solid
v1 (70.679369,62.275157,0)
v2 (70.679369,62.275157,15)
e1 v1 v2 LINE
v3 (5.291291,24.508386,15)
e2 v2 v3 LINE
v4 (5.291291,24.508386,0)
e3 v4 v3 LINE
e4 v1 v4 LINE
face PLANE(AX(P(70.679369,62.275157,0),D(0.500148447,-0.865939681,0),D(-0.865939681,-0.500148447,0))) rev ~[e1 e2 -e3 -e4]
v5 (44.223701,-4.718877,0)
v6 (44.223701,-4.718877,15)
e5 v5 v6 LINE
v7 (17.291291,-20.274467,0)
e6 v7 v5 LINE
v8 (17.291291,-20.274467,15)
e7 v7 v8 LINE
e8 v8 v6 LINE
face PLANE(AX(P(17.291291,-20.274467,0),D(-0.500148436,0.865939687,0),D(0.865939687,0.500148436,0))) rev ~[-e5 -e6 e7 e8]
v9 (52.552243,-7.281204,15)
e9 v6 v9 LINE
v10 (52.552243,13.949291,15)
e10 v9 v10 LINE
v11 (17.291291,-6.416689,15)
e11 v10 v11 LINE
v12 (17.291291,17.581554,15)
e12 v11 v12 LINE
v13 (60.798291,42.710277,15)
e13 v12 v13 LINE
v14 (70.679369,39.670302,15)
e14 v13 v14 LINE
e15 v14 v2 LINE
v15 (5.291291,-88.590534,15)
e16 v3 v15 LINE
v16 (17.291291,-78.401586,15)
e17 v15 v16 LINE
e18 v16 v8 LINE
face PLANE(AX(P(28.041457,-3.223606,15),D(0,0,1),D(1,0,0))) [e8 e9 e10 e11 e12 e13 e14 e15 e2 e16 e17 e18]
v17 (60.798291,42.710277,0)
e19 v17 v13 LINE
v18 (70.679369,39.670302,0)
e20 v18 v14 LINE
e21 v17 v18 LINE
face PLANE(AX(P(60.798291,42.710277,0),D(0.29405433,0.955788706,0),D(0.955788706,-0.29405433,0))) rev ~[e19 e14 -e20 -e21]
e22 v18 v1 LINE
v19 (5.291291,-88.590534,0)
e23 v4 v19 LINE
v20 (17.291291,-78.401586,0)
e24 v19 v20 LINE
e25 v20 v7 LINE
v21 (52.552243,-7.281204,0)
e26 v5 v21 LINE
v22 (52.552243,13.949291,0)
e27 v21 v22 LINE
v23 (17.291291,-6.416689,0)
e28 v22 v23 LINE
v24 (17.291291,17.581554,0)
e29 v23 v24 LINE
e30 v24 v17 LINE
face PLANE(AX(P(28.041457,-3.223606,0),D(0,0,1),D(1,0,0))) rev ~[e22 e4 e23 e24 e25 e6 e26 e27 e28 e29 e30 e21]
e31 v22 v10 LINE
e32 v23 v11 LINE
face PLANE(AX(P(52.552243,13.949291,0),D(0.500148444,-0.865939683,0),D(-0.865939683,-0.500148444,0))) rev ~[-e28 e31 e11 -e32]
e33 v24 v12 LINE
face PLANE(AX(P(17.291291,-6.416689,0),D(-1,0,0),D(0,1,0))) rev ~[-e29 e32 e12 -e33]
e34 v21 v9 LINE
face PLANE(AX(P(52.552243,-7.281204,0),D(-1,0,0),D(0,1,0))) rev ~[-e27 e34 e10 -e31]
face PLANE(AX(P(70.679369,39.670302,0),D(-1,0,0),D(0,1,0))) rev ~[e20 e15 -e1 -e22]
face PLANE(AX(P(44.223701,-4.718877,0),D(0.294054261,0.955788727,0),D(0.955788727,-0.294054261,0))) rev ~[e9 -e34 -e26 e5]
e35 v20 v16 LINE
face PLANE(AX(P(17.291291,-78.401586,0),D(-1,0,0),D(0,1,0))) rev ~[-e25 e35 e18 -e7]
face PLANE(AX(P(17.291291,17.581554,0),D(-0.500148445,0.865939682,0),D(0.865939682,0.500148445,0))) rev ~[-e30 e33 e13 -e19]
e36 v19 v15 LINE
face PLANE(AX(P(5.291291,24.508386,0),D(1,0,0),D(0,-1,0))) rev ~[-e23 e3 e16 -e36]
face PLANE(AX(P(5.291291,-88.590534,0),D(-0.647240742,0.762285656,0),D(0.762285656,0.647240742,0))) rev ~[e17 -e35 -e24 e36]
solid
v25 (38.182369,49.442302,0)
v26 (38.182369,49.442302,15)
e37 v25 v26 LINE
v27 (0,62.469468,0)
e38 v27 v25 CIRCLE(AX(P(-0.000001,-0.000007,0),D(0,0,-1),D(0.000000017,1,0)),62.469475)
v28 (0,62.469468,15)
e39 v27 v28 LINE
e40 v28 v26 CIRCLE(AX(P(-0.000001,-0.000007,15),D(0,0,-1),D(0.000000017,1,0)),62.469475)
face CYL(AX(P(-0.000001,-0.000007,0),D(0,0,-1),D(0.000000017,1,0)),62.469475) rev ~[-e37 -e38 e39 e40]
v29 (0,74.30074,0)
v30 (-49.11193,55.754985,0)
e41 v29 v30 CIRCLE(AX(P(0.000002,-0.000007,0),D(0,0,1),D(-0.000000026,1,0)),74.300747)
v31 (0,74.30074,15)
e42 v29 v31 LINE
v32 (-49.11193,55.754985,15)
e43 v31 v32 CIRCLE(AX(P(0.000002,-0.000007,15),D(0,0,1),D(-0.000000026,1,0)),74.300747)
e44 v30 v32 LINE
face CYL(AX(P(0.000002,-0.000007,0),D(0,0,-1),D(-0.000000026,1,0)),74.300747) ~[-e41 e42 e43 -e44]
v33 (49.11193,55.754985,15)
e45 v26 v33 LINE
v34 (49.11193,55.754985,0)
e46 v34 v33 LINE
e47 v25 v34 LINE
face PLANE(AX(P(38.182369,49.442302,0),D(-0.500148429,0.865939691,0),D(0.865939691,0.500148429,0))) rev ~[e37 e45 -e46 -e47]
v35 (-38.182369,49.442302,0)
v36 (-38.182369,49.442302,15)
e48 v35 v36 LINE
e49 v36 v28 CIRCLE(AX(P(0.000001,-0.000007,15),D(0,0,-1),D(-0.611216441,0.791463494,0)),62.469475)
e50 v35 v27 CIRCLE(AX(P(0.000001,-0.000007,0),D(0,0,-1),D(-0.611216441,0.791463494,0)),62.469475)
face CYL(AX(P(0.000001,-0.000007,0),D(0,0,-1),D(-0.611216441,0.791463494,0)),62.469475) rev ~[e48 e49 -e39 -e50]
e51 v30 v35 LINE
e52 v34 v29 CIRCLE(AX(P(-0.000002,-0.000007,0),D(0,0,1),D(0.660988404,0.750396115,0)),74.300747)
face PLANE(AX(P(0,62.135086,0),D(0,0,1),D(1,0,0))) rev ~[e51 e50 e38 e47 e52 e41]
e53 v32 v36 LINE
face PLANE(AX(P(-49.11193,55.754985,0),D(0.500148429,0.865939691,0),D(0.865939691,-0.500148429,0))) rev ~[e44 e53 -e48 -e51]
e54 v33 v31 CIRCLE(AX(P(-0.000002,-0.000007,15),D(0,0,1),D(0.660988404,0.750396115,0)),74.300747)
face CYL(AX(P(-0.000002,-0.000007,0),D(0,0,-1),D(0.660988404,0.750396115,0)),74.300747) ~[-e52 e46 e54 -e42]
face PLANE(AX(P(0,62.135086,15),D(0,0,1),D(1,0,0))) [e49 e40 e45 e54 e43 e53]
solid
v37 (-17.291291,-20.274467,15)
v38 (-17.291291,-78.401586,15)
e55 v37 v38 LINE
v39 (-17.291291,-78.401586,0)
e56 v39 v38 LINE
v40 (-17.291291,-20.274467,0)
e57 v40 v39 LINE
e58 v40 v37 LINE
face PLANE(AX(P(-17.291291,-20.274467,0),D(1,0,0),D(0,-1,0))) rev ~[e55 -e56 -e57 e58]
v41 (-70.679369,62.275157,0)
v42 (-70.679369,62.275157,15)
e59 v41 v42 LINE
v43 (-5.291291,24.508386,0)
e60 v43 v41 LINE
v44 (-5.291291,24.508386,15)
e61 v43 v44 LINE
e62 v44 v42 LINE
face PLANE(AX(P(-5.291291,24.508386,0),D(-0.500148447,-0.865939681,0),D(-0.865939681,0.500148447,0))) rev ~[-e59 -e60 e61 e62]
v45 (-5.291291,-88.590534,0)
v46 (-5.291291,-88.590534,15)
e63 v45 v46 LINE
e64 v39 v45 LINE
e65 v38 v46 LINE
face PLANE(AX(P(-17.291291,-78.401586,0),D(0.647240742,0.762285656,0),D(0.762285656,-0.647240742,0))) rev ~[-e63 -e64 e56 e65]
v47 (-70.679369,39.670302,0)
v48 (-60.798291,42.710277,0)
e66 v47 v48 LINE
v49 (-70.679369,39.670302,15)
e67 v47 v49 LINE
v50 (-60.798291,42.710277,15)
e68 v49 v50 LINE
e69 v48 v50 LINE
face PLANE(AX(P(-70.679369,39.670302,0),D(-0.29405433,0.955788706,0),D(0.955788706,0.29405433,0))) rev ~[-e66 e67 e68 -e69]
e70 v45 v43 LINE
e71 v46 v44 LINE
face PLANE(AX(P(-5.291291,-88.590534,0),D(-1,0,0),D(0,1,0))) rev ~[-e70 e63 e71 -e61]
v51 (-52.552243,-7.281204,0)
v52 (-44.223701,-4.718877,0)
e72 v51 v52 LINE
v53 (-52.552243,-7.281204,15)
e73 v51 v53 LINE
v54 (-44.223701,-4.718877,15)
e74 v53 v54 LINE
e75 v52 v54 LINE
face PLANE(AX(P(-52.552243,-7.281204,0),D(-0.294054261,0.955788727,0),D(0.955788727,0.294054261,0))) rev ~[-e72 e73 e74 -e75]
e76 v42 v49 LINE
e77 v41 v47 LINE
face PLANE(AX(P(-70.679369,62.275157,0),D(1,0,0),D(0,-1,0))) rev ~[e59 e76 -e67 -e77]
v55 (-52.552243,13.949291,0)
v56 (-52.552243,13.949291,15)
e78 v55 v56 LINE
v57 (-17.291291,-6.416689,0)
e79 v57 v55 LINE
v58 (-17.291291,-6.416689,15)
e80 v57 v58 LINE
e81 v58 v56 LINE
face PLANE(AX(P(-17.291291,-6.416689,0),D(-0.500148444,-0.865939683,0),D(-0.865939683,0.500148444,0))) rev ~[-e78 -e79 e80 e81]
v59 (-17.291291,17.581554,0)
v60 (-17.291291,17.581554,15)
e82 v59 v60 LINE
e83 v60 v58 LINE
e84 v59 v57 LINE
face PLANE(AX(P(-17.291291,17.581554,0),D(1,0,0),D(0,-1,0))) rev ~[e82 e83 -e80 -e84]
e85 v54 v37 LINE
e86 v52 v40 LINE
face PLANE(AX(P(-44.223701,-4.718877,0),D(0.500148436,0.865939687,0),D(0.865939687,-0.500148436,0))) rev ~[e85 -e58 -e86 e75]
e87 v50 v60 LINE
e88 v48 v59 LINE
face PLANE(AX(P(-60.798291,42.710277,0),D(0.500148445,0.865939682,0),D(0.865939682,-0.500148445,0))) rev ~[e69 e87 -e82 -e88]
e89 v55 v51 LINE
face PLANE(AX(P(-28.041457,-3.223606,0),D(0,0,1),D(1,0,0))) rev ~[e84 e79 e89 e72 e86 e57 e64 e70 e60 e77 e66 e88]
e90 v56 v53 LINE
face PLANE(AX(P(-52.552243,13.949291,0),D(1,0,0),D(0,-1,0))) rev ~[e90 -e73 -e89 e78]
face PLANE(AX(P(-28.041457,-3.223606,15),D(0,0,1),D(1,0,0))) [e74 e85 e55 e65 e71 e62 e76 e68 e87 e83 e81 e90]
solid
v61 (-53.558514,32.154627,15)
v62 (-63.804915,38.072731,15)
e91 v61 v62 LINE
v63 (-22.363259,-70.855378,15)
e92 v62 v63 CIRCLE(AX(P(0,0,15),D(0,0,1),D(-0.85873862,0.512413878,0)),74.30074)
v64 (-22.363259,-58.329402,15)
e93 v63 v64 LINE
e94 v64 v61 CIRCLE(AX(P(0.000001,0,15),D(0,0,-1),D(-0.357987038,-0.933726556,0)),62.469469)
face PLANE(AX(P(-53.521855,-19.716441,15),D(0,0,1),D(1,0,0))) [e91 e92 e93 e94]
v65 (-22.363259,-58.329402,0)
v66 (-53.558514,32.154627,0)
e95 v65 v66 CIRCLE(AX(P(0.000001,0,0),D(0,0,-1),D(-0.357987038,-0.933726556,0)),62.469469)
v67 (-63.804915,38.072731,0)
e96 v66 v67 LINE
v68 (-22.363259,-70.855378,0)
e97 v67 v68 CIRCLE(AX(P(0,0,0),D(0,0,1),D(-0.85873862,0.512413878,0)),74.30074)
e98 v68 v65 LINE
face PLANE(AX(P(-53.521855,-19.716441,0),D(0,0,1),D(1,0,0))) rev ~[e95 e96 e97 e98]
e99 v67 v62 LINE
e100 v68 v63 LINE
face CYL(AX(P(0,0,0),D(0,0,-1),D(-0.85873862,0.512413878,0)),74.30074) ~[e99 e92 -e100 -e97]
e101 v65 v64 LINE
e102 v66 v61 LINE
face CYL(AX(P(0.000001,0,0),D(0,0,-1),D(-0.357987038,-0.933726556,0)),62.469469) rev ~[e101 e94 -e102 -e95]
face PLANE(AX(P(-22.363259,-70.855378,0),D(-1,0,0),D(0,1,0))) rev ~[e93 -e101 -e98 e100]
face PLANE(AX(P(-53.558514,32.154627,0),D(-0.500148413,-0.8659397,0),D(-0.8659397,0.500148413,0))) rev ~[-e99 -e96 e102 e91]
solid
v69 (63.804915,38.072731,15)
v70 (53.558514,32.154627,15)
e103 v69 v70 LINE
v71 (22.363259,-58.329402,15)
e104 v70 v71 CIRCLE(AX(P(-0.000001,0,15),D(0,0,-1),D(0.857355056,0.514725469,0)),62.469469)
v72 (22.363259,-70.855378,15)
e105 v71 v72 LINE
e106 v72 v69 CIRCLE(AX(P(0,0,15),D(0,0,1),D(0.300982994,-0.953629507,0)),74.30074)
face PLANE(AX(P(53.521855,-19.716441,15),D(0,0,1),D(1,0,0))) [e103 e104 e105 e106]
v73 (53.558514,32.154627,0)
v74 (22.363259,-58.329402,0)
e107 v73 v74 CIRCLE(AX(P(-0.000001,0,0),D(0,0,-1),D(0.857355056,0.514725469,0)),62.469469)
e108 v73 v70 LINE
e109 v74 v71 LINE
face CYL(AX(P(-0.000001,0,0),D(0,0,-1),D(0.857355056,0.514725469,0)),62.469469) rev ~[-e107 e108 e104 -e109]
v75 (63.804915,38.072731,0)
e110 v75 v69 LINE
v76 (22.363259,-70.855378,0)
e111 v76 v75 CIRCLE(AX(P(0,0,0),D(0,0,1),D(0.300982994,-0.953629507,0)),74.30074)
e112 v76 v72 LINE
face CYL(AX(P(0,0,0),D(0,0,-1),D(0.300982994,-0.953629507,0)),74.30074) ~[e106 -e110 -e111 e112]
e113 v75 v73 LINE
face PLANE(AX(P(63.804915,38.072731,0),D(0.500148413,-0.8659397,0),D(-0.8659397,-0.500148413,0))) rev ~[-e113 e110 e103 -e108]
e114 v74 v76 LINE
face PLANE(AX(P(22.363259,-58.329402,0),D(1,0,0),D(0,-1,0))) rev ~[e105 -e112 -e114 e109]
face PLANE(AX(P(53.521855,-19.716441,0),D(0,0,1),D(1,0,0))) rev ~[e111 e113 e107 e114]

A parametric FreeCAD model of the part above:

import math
import FreeCAD as App
import Part
import Sketcher

V = App.Vector

doc = App.newDocument("Part")
body = doc.addObject("PartDesign::Body", "Body")
body.AllowCompound = True

# Sketch on XY plane
sketch1 = body.newObject("Sketcher::SketchObject", "Sketch")
sketch1.AttachmentSupport = (doc.getObject("XY_Plane"), [""])
sketch1.MapMode = "FlatFace"
sketch1.addGeometry([
    Part.ArcOfCircle(Part.Circle(V(0, 0, 0), V(0, 0, 1), 74), math.radians(90), math.radians(131)),  # 0
    Part.LineSegment(V(-49, 56, 0), V(-38, 49, 0)),  # 1
    Part.ArcOfCircle(Part.Circle(V(0, 0, 0), V(0, 0, 1), 62), math.radians(90), math.radians(128)),  # 2
    Part.ArcOfCircle(Part.Circle(V(0, 0, 0), V(0, 0, 1), 62), math.radians(52), math.radians(90)),  # 3
    Part.LineSegment(V(38, 49, 0), V(49, 56, 0)),  # 4
    Part.ArcOfCircle(Part.Circle(V(0, 0, 0), V(0, 0, 1), 74), math.radians(49), math.radians(90)),  # 5
    Part.LineSegment(V(-54, 32, 0), V(-64, 38, 0)),  # 6
    Part.ArcOfCircle(Part.Circle(V(0, 0, 0), V(0, 0, 1), 74), math.radians(149), math.radians(252)),  # 7
    Part.LineSegment(V(-22, -71, 0), V(-22, -58, 0)),  # 8
    Part.ArcOfCircle(Part.Circle(V(0, 0, 0), V(0, 0, 1), 62), math.radians(149), math.radians(249)),  # 9
    Part.ArcOfCircle(Part.Circle(V(0, 0, 0), V(0, 0, 1), 74), math.radians(-72), math.radians(31)),  # 10
    Part.LineSegment(V(64, 38, 0), V(54, 32, 0)),  # 11
    Part.ArcOfCircle(Part.Circle(V(0, 0, 0), V(0, 0, 1), 62), math.radians(-69), math.radians(31)),  # 12
    Part.LineSegment(V(22, -58, 0), V(22, -71, 0)),  # 13
    Part.LineSegment(V(-17, -78, 0), V(-5, -89, 0)),  # 14
    Part.LineSegment(V(-5, -89, 0), V(-5, 25, 0)),  # 15
    Part.LineSegment(V(-5, 25, 0), V(-71, 62, 0)),  # 16
    Part.LineSegment(V(-71, 62, 0), V(-71, 40, 0)),  # 17
    Part.LineSegment(V(-71, 40, 0), V(-61, 43, 0)),  # 18
    Part.LineSegment(V(-61, 43, 0), V(-17, 18, 0)),  # 19
    Part.LineSegment(V(-17, 18, 0), V(-17, -6, 0)),  # 20
    Part.LineSegment(V(-17, -6, 0), V(-53, 14, 0)),  # 21
    Part.LineSegment(V(-53, 14, 0), V(-53, -7, 0)),  # 22
    Part.LineSegment(V(-53, -7, 0), V(-44, -5, 0)),  # 23
    Part.LineSegment(V(-44, -5, 0), V(-17, -20, 0)),  # 24
    Part.LineSegment(V(-17, -20, 0), V(-17, -78, 0)),  # 25
    Part.LineSegment(V(17, -6, 0), V(17, 18, 0)),  # 26
    Part.LineSegment(V(17, 18, 0), V(61, 43, 0)),  # 27
    Part.LineSegment(V(61, 43, 0), V(71, 40, 0)),  # 28
    Part.LineSegment(V(71, 40, 0), V(71, 62, 0)),  # 29
    Part.LineSegment(V(71, 62, 0), V(5, 25, 0)),  # 30
    Part.LineSegment(V(5, 25, 0), V(5, -89, 0)),  # 31
    Part.LineSegment(V(5, -89, 0), V(17, -78, 0)),  # 32
    Part.LineSegment(V(17, -78, 0), V(17, -20, 0)),  # 33
    Part.LineSegment(V(17, -20, 0), V(44, -5, 0)),  # 34
    Part.LineSegment(V(44, -5, 0), V(53, -7, 0)),  # 35
    Part.LineSegment(V(53, -7, 0), V(53, 14, 0)),  # 36
    Part.LineSegment(V(53, 14, 0), V(17, -6, 0)),  # 37
], False)
sketch1.addConstraint([
    Sketcher.Constraint("Coincident", 0, 2, 1, 1),
    Sketcher.Constraint("Coincident", 1, 2, 2, 2),
    Sketcher.Constraint("Tangent", 2, 1, 3, 2),
    Sketcher.Constraint("Coincident", 3, 1, 4, 1),
    Sketcher.Constraint("Coincident", 4, 2, 5, 1),
    Sketcher.Constraint("Tangent", 5, 2, 0, 1),
    Sketcher.Constraint("Coincident", 6, 2, 7, 1),
    Sketcher.Constraint("Coincident", 7, 2, 8, 1),
    Sketcher.Constraint("Coincident", 8, 2, 9, 2),
    Sketcher.Constraint("Coincident", 9, 1, 6, 1),
    Sketcher.Constraint("Coincident", 10, 2, 11, 1),
    Sketcher.Constraint("Coincident", 11, 2, 12, 2),
    Sketcher.Constraint("Coincident", 12, 1, 13, 1),
    Sketcher.Constraint("Coincident", 13, 2, 10, 1),
    Sketcher.Constraint("Coincident", 14, 2, 15, 1),
    Sketcher.Constraint("Coincident", 15, 2, 16, 1),
    Sketcher.Constraint("Coincident", 16, 2, 17, 1),
    Sketcher.Constraint("Coincident", 17, 2, 18, 1),
    Sketcher.Constraint("Coincident", 18, 2, 19, 1),
    Sketcher.Constraint("Coincident", 19, 2, 20, 1),
    Sketcher.Constraint("Coincident", 20, 2, 21, 1),
    Sketcher.Constraint("Coincident", 21, 2, 22, 1),
    Sketcher.Constraint("Coincident", 22, 2, 23, 1),
    Sketcher.Constraint("Coincident", 23, 2, 24, 1),
    Sketcher.Constraint("Coincident", 24, 2, 25, 1),
    Sketcher.Constraint("Coincident", 25, 2, 14, 1),
    Sketcher.Constraint("Coincident", 26, 2, 27, 1),
    Sketcher.Constraint("Coincident", 27, 2, 28, 1),
    Sketcher.Constraint("Coincident", 28, 2, 29, 1),
    Sketcher.Constraint("Coincident", 29, 2, 30, 1),
    Sketcher.Constraint("Coincident", 30, 2, 31, 1),
    Sketcher.Constraint("Coincident", 31, 2, 32, 1),
    Sketcher.Constraint("Coincident", 32, 2, 33, 1),
    Sketcher.Constraint("Coincident", 33, 2, 34, 1),
    Sketcher.Constraint("Coincident", 34, 2, 35, 1),
    Sketcher.Constraint("Coincident", 35, 2, 36, 1),
    Sketcher.Constraint("Coincident", 36, 2, 37, 1),
    Sketcher.Constraint("Coincident", 37, 2, 26, 1),
    Sketcher.Constraint("Vertical", 8),
    Sketcher.Constraint("Vertical", 13),
    Sketcher.Constraint("Vertical", 15),
    Sketcher.Constraint("Vertical", 17),
    Sketcher.Constraint("Vertical", 20),
    Sketcher.Constraint("Vertical", 22),
    Sketcher.Constraint("Vertical", 25),
    Sketcher.Constraint("Vertical", 26),
    Sketcher.Constraint("Vertical", 29),
    Sketcher.Constraint("Vertical", 31),
    Sketcher.Constraint("Vertical", 33),
    Sketcher.Constraint("Vertical", 36),
    Sketcher.Constraint("Coincident", 0, 3, -1, 1),
    Sketcher.Constraint("Coincident", 2, 3, -1, 1),
    Sketcher.Constraint("Coincident", 7, 3, -1, 1),
    Sketcher.Constraint("Coincident", 9, 3, -1, 1),
    Sketcher.Constraint("Coincident", 10, 3, -1, 1),
    Sketcher.Constraint("Coincident", 12, 3, -1, 1),
    Sketcher.Constraint("Equal", 2, 3),
    Sketcher.Constraint("Equal", 0, 5),
    Sketcher.Constraint("Equal", 7, 10),
    Sketcher.Constraint("Equal", 9, 12),
    Sketcher.Constraint("Symmetric", 19, 2, 26, 2, -2),
    Sketcher.Constraint("Symmetric", 18, 2, 27, 2, -2),
    Sketcher.Constraint("Symmetric", 17, 2, 28, 2, -2),
    Sketcher.Constraint("Symmetric", 15, 2, 30, 2, -2),
    Sketcher.Constraint("Symmetric", 25, 2, 32, 2, -2),
    Sketcher.Constraint("Symmetric", 23, 2, 34, 2, -2),
    Sketcher.Constraint("Symmetric", 22, 2, 35, 2, -2),
    Sketcher.Constraint("PointOnObject", 2, 1, -2),
    Sketcher.Constraint("PointOnObject", 5, 2, -2),
    Sketcher.Constraint("Parallel", 1, 6),
    Sketcher.Constraint("Parallel", 4, 11),
    Sketcher.Constraint("Parallel", 6, 16),
    Sketcher.Constraint("Parallel", 16, 19),
    Sketcher.Constraint("Parallel", 19, 21),
    Sketcher.Constraint("Parallel", 18, 23),
    Sketcher.Constraint("Parallel", 21, 24),
    Sketcher.Constraint("Parallel", 11, 27),
    Sketcher.Constraint("Parallel", 27, 30),
    Sketcher.Constraint("Parallel", 30, 34),
    Sketcher.Constraint("Parallel", 34, 37),
    Sketcher.Constraint("Horizontal", 1, 2, 3, 1),
    Sketcher.Constraint("Horizontal", 6, 2, 10, 2),
    Sketcher.Constraint("Horizontal", 8, 2, 12, 1),
    Sketcher.Constraint("Horizontal", 14, 2, 31, 2),
    Sketcher.Constraint("Horizontal", 21, 2, 36, 2),
    Sketcher.Constraint("Vertical", 20, 2, 24, 2),
    Sketcher.Constraint("DistanceX", 19, 2, 15, 2, 12.0),
    Sketcher.Constraint("Radius", 7, 74.30074),
    Sketcher.Constraint("Radius", 9, 62.469469),
    Sketcher.Constraint("Radius", 0, 74.300747),
    Sketcher.Constraint("Radius", 2, 62.469475),
    Sketcher.Constraint("DistanceX", 16, 2, 1, 2, 32.497),
    Sketcher.Constraint("DistanceY", 17, 2, 1, 2, 9.772),
    Sketcher.Constraint("DistanceX", 26, 2, 27, 2, 43.507),
    Sketcher.Constraint("DistanceY", 15, 1, 15, 2, 113.09892),
    Sketcher.Constraint("DistanceY", 25, 2, 25, 1, 58.127119),
    Sketcher.Constraint("DistanceY", -1, 1, 1, 2, 49.442302),
    Sketcher.Constraint("DistanceY", 12, 1, -1, 1, 58.329402),
    Sketcher.Constraint("DistanceX", 23, 2, -1, 1, 44.223701),
    Sketcher.Constraint("Distance", 1, 12.621619),
    Sketcher.Constraint("Distance", 14, 15.74213),
    Sketcher.Constraint("Distance", 18, 10.338141),
    Sketcher.Constraint("Distance", 21, 40.719871),
    Sketcher.Constraint("Distance", 23, 8.71379),
    Sketcher.Constraint("DistanceY", 17, 2, 17, 1, 22.604855),
    Sketcher.Constraint("DistanceY", 20, 2, 20, 1, 23.998243),
    Sketcher.Constraint("DistanceY", -1, 1, 6, 2, 38.072731),
])
pad1 = body.newObject("PartDesign::Pad", "Pad")
pad1.Profile = sketch1
pad1.Length = 15

doc.recompute()
